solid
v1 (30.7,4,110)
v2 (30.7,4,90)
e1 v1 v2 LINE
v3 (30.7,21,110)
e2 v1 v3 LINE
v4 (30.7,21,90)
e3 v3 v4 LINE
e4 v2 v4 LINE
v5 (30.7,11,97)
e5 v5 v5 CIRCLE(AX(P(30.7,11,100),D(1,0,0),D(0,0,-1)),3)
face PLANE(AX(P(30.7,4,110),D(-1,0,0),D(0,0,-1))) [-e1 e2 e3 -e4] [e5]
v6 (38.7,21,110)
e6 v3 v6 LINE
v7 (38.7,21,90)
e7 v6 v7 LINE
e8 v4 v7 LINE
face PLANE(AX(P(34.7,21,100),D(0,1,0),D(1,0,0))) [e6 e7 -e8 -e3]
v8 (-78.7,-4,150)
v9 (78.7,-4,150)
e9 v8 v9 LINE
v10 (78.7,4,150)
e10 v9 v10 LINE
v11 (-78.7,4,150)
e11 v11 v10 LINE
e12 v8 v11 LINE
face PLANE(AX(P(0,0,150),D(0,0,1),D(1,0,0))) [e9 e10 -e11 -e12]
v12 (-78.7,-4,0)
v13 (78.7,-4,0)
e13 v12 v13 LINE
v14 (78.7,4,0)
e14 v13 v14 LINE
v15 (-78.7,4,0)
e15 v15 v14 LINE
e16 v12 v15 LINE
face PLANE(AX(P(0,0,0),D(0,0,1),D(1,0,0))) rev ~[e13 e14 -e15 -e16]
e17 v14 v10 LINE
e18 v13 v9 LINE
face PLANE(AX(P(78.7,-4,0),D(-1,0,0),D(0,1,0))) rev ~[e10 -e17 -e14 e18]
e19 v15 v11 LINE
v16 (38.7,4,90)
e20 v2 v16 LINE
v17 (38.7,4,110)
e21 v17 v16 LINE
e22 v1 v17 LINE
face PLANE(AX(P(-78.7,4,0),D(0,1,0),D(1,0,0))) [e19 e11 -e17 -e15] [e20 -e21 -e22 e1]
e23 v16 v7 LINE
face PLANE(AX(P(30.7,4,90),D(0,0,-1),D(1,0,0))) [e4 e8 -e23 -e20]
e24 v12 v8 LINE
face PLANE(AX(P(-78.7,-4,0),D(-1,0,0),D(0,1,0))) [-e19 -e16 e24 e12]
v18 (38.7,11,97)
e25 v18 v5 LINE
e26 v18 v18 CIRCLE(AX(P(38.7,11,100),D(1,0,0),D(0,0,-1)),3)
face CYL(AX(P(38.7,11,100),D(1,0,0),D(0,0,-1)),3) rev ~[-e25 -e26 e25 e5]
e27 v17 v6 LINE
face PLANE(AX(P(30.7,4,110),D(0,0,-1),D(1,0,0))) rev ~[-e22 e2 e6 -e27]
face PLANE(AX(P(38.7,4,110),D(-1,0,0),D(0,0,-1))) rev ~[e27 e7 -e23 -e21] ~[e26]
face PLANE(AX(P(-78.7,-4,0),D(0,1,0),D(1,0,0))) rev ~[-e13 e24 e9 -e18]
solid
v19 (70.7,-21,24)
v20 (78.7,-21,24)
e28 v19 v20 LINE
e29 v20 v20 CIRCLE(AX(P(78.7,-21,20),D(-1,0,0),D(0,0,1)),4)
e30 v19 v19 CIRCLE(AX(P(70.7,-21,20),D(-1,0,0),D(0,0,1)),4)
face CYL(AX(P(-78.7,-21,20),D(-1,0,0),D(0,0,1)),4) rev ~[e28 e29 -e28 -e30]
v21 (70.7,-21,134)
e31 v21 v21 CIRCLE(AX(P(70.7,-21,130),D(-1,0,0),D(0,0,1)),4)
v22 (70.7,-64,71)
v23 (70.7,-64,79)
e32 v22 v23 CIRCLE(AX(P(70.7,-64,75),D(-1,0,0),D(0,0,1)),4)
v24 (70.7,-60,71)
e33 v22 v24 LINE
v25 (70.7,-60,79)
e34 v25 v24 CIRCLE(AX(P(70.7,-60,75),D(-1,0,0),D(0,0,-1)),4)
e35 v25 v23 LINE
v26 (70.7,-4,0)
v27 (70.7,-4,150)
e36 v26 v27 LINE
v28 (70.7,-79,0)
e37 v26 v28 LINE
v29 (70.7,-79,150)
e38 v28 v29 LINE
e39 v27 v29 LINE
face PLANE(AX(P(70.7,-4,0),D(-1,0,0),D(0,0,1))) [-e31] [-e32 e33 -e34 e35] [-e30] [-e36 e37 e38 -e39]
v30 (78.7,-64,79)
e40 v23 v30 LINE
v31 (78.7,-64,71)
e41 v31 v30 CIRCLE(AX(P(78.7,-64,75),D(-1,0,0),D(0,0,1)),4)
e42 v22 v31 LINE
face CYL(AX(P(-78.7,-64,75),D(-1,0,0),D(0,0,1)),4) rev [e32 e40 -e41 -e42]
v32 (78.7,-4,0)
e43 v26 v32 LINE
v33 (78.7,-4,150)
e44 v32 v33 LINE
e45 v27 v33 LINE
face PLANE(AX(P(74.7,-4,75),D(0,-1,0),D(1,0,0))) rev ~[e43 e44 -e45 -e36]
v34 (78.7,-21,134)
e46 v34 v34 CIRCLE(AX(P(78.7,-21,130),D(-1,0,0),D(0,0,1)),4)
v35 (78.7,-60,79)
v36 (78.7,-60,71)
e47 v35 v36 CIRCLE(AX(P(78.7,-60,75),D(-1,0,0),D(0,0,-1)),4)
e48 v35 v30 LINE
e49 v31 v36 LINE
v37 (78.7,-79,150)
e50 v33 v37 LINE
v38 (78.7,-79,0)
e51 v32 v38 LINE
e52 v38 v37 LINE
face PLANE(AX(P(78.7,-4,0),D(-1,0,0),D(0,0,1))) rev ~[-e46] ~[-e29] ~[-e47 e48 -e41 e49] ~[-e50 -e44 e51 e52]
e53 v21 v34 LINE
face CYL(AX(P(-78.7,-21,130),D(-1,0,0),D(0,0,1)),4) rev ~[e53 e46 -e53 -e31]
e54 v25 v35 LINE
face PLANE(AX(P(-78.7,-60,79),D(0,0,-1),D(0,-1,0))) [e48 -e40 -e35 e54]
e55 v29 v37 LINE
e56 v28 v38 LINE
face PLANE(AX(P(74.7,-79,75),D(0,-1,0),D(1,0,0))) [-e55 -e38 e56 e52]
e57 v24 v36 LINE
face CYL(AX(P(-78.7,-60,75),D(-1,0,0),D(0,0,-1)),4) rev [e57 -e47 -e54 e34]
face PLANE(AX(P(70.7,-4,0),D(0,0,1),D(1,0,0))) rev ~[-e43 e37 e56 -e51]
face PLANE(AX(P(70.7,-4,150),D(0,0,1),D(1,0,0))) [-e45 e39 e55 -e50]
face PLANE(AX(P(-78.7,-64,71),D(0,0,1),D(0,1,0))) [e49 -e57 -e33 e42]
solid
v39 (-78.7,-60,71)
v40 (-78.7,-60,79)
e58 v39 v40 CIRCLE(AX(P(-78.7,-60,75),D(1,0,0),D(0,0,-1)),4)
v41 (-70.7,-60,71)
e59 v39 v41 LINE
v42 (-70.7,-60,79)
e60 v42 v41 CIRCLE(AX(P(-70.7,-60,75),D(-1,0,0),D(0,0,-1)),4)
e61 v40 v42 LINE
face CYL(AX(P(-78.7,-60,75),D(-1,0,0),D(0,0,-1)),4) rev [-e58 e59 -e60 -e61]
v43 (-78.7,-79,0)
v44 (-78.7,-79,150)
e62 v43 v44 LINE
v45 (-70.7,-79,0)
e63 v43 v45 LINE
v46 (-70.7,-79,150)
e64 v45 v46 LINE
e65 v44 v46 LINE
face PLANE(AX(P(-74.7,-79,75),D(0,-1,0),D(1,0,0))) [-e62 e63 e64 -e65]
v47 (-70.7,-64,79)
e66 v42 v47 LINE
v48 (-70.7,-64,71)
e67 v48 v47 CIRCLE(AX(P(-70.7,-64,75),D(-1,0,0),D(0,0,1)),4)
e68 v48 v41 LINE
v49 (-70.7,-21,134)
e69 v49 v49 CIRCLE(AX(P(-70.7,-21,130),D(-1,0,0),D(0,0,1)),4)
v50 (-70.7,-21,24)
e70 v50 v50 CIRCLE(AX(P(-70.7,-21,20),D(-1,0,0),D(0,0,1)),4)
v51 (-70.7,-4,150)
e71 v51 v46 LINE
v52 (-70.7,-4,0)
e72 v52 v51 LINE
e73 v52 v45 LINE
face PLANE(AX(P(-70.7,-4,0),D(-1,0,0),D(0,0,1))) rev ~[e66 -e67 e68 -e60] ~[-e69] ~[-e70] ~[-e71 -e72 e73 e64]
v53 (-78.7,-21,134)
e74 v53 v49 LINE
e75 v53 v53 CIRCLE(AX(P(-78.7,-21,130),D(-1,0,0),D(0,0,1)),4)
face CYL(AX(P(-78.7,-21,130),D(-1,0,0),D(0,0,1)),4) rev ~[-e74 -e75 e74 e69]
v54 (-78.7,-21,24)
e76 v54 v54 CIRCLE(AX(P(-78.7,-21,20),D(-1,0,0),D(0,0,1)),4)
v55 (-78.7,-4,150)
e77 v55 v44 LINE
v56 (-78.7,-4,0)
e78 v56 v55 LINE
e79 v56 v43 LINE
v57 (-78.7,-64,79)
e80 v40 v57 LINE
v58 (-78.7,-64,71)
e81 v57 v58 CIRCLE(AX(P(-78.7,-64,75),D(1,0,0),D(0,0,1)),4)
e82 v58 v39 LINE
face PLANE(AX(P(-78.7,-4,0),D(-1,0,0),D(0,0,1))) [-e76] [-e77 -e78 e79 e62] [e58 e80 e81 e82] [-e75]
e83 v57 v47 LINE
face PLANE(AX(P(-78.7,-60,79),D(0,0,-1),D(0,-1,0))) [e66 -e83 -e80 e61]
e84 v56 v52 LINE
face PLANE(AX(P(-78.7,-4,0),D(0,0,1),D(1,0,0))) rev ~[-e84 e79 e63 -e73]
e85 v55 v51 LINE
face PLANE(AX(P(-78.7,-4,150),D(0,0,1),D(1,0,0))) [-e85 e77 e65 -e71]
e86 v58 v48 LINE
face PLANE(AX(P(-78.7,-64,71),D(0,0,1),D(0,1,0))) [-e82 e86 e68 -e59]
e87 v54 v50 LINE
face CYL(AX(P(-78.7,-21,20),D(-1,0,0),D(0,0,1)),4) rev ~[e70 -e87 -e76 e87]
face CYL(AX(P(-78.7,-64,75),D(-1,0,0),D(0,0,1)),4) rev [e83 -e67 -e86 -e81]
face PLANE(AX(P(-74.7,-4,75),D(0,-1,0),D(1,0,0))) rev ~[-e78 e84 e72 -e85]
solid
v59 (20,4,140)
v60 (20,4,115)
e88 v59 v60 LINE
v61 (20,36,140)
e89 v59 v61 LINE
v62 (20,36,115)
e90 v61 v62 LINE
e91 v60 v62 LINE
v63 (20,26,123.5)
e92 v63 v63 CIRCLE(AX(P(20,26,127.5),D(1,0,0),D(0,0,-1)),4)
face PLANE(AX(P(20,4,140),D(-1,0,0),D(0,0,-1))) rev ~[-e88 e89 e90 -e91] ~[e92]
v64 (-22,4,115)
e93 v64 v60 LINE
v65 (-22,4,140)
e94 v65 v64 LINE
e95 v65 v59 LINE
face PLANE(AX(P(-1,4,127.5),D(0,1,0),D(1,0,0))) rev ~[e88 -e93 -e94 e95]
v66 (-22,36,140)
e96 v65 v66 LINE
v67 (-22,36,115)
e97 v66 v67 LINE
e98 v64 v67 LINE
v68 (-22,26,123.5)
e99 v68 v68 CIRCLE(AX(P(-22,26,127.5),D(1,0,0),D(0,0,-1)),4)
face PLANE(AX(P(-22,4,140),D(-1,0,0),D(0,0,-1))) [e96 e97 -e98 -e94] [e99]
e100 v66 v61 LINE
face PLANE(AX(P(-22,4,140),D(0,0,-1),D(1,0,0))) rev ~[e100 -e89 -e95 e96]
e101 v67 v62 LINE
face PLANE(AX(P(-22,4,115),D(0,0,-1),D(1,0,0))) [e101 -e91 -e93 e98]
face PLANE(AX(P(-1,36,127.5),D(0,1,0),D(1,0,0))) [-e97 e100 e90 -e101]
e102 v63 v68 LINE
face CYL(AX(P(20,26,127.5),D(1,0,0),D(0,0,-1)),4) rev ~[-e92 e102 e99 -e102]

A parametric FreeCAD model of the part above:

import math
import FreeCAD as App
import Part
import Sketcher


def add_polygon(sketch, points):
    """Adds a closed chain of lines whose ends are joined by coincident constraints."""
    first, n = sketch.GeometryCount, len(points)
    for a, b in zip(points, points[1:] + points[:1]):
        sketch.addGeometry(Part.LineSegment(App.Vector(*a, 0), App.Vector(*b, 0)), False)
    for i in range(n):
        sketch.addConstraint(Sketcher.Constraint("Coincident", first + i, 2, first + (i + 1) % n, 1))

doc = App.newDocument("Part")
body = doc.addObject("PartDesign::Body", "Body")

sketch1 = doc.addObject("Sketcher::SketchObject", "Sketch")
body.addObject(sketch1)
sketch1.AttachmentSupport = (doc.XY_Plane, [""])
sketch1.MapMode = "FlatFace"
add_polygon(sketch1, [(-79, 4), (-79, -4), (79, -4), (79, 4)])
sketch1.addConstraint(Sketcher.Constraint("Vertical", 0))
sketch1.addConstraint(Sketcher.Constraint("Horizontal", 1))
sketch1.addConstraint(Sketcher.Constraint("Vertical", 2))
sketch1.addConstraint(Sketcher.Constraint("Horizontal", 3))
sketch1.addConstraint(Sketcher.Constraint("Symmetric", 0, 2, 2, 2, -1, 1))
sketch1.addConstraint(Sketcher.Constraint("DistanceY", 0, 2, 0, 1, 8.0))
sketch1.addConstraint(Sketcher.Constraint("DistanceX", 1, 1, 1, 2, 157.4))
pad1 = doc.addObject("PartDesign::Pad", "Pad")
body.addObject(pad1)
pad1.Profile = sketch1
pad1.Length = 150

sketch2 = doc.addObject("Sketcher::SketchObject", "Sketch001")
body.addObject(sketch2)
sketch2.AttachmentSupport = (doc.XZ_Plane, [""])
sketch2.MapMode = "FlatFace"
sketch2.AttachmentOffset = App.Placement(App.Vector(0, 0, -4), App.Rotation())
add_polygon(sketch2, [(31, 90), (31, 110), (39, 110), (39, 90)])
sketch2.addConstraint(Sketcher.Constraint("Vertical", 0))
sketch2.addConstraint(Sketcher.Constraint("Horizontal", 1))
sketch2.addConstraint(Sketcher.Constraint("Vertical", 2))
sketch2.addConstraint(Sketcher.Constraint("Horizontal", 3))
sketch2.addConstraint(Sketcher.Constraint("DistanceX", 1, 1, 1, 2, 8.0))
sketch2.addConstraint(Sketcher.Constraint("DistanceY", 0, 1, 0, 2, 20.0))
sketch2.addConstraint(Sketcher.Constraint("DistanceY", -1, 1, 0, 2, 110.0))
sketch2.addConstraint(Sketcher.Constraint("DistanceX", -1, 1, 0, 2, 30.7))
pad2 = doc.addObject("PartDesign::Pad", "Pad001")
body.addObject(pad2)
pad2.Profile = sketch2
pad2.Length = 17
pad2.Reversed = True

sketch3 = doc.addObject("Sketcher::SketchObject", "Sketch002")
body.addObject(sketch3)
sketch3.AttachmentSupport = (doc.YZ_Plane, [""])
sketch3.MapMode = "FlatFace"
sketch3.AttachmentOffset = App.Placement(App.Vector(0, 0, 38.7), App.Rotation())
sketch3.addGeometry(Part.Circle(App.Vector(11, 100, 0), App.Vector(0, 0, 1), 3), False)
sketch3.addConstraint(Sketcher.Constraint("Diameter", 0, 6.0))
sketch3.addConstraint(Sketcher.Constraint("DistanceX", -1, 1, 0, 3, 11.0))
sketch3.addConstraint(Sketcher.Constraint("DistanceY", -1, 1, 0, 3, 100.0))
pocket1 = doc.addObject("PartDesign::Pocket", "Pocket")
body.addObject(pocket1)
pocket1.Profile = sketch3
pocket1.Length = 8
body2 = doc.addObject("PartDesign::Body", "Body001")

sketch4 = doc.addObject("Sketcher::SketchObject", "Sketch003")
body2.addObject(sketch4)
sketch4.AttachmentSupport = (doc.getObject("XZ_Plane001"), [""])
sketch4.MapMode = "FlatFace"
sketch4.AttachmentOffset = App.Placement(App.Vector(0, 0, 4), App.Rotation())
add_polygon(sketch4, [(-79, 150), (-79, 0), (-71, 0), (-71, 150)])
sketch4.addConstraint(Sketcher.Constraint("Vertical", 0))
sketch4.addConstraint(Sketcher.Constraint("Horizontal", 1))
sketch4.addConstraint(Sketcher.Constraint("Vertical", 2))
sketch4.addConstraint(Sketcher.Constraint("Horizontal", 3))
sketch4.addConstraint(Sketcher.Constraint("PointOnObject", 0, 2, -1))
sketch4.addConstraint(Sketcher.Constraint("DistanceX", 1, 1, 1, 2, 8.0))
sketch4.addConstraint(Sketcher.Constraint("DistanceY", 0, 2, 0, 1, 150.0))
sketch4.addConstraint(Sketcher.Constraint("DistanceX", 0, 2, -1, 1, 78.7))
pad3 = doc.addObject("PartDesign::Pad", "Pad002")
body2.addObject(pad3)
pad3.Profile = sketch4
pad3.Length = 75
body3 = doc.addObject("PartDesign::Body", "Body002")

sketch5 = doc.addObject("Sketcher::SketchObject", "Sketch004")
body3.addObject(sketch5)
sketch5.AttachmentSupport = (doc.getObject("XZ_Plane002"), [""])
sketch5.MapMode = "FlatFace"
sketch5.AttachmentOffset = App.Placement(App.Vector(0, 0, 4), App.Rotation())
add_polygon(sketch5, [(71, 150), (71, 0), (79, 0), (79, 150)])
sketch5.addConstraint(Sketcher.Constraint("Vertical", 0))
sketch5.addConstraint(Sketcher.Constraint("Horizontal", 1))
sketch5.addConstraint(Sketcher.Constraint("Vertical", 2))
sketch5.addConstraint(Sketcher.Constraint("Horizontal", 3))
sketch5.addConstraint(Sketcher.Constraint("PointOnObject", 0, 2, -1))
sketch5.addConstraint(Sketcher.Constraint("DistanceX", 1, 1, 1, 2, 8.0))
sketch5.addConstraint(Sketcher.Constraint("DistanceY", 0, 2, 0, 1, 150.0))
sketch5.addConstraint(Sketcher.Constraint("DistanceX", -1, 1, 0, 2, 70.7))
pad4 = doc.addObject("PartDesign::Pad", "Pad003")
body3.addObject(pad4)
pad4.Profile = sketch5
pad4.Length = 75
body4 = doc.addObject("PartDesign::Body", "Body003")
body4.AllowCompound = True

sketch6 = doc.addObject("Sketcher::SketchObject", "Sketch005")
body4.addObject(sketch6)
sketch6.AttachmentSupport = (doc.getObject("YZ_Plane003"), [""])
sketch6.MapMode = "FlatFace"
sketch6.AttachmentOffset = App.Placement(App.Vector(0, 0, -78.7), App.Rotation())
sketch6.addGeometry(Part.Circle(App.Vector(-21, 130, 0), App.Vector(0, 0, 1), 4), False)
sketch6.addGeometry(Part.Circle(App.Vector(-21, 20, 0), App.Vector(0, 0, 1), 4), False)
sketch6.addGeometry(Part.LineSegment(App.Vector(-64, 79, 0), App.Vector(-60, 79, 0)), False)
sketch6.addGeometry(Part.ArcOfCircle(Part.Circle(App.Vector(-60, 75, 0), App.Vector(0, 0, 1), 4), math.radians(-90), math.radians(90)), False)
sketch6.addGeometry(Part.LineSegment(App.Vector(-60, 71, 0), App.Vector(-64, 71, 0)), False)
sketch6.addGeometry(Part.ArcOfCircle(Part.Circle(App.Vector(-64, 75, 0), App.Vector(0, 0, 1), 4), math.radians(90), math.radians(270)), False)
sketch6.addConstraint(Sketcher.Constraint("Tangent", 2, 2, 3, 2))
sketch6.addConstraint(Sketcher.Constraint("Tangent", 3, 1, 4, 1))
sketch6.addConstraint(Sketcher.Constraint("Tangent", 4, 2, 5, 2))
sketch6.addConstraint(Sketcher.Constraint("Tangent", 5, 1, 2, 1))
sketch6.addConstraint(Sketcher.Constraint("Horizontal", 2))
sketch6.addConstraint(Sketcher.Constraint("Horizontal", 4))
sketch6.addConstraint(Sketcher.Constraint("Equal", 0, 1))
sketch6.addConstraint(Sketcher.Constraint("Equal", 1, 3))
sketch6.addConstraint(Sketcher.Constraint("Vertical", 0, 3, 1, 3))
sketch6.addConstraint(Sketcher.Constraint("Diameter", 0, 8.0))
sketch6.addConstraint(Sketcher.Constraint("DistanceX", 2, 1, 2, 2, 4.0))
sketch6.addConstraint(Sketcher.Constraint("DistanceX", 0, 3, -1, 1, 21.0))
sketch6.addConstraint(Sketcher.Constraint("DistanceY", -1, 1, 0, 3, 130.0))
sketch6.addConstraint(Sketcher.Constraint("DistanceY", -1, 1, 1, 3, 20.0))
sketch6.addConstraint(Sketcher.Constraint("DistanceX", 3, 3, -1, 1, 60.0))
sketch6.addConstraint(Sketcher.Constraint("DistanceY", -1, 1, 3, 3, 75.0))
pad5 = doc.addObject("PartDesign::Pad", "Pad004")
body4.addObject(pad5)
pad5.Profile = sketch6
pad5.Length = 232.334736
doc.recompute()

body5 = doc.addObject("PartDesign::Body", "Body004")
body5.BaseFeature = body4
boolean = doc.addObject("PartDesign::Boolean", "Boolean")
body2.addObject(boolean)
boolean.Type = "Cut"
boolean.addObjects([body5])
doc.recompute()

boolean2 = doc.addObject("PartDesign::Boolean", "Boolean001")
body3.addObject(boolean2)
boolean2.Type = "Cut"
boolean2.addObjects([body4])
body6 = doc.addObject("PartDesign::Body", "Body005")

sketch7 = doc.addObject("Sketcher::SketchObject", "Sketch006")
body6.addObject(sketch7)
sketch7.AttachmentSupport = (doc.getObject("XZ_Plane005"), [""])
sketch7.MapMode = "FlatFace"
sketch7.AttachmentOffset = App.Placement(App.Vector(0, 0, -4), App.Rotation())
add_polygon(sketch7, [(-22, 115), (-22, 140), (20, 140), (20, 115)])
sketch7.addConstraint(Sketcher.Constraint("Vertical", 0))
sketch7.addConstraint(Sketcher.Constraint("Horizontal", 1))
sketch7.addConstraint(Sketcher.Constraint("Vertical", 2))
sketch7.addConstraint(Sketcher.Constraint("Horizontal", 3))
sketch7.addConstraint(Sketcher.Constraint("DistanceX", 1, 1, 1, 2, 42.0))
sketch7.addConstraint(Sketcher.Constraint("DistanceY", 0, 1, 0, 2, 25.0))
sketch7.addConstraint(Sketcher.Constraint("DistanceX", 0, 2, -1, 1, 22.0))
sketch7.addConstraint(Sketcher.Constraint("DistanceY", -1, 1, 0, 2, 140.0))
pad6 = doc.addObject("PartDesign::Pad", "Pad005")
body6.addObject(pad6)
pad6.Profile = sketch7
pad6.Length = 32
pad6.Reversed = True

sketch8 = doc.addObject("Sketcher::SketchObject", "Sketch007")
body6.addObject(sketch8)
sketch8.AttachmentSupport = (doc.getObject("YZ_Plane005"), [""])
sketch8.MapMode = "FlatFace"
sketch8.AttachmentOffset = App.Placement(App.Vector(0, 0, 20), App.Rotation())
sketch8.addGeometry(Part.Circle(App.Vector(26, 127.5, 0), App.Vector(0, 0, 1), 4), False)
sketch8.addConstraint(Sketcher.Constraint("Diameter", 0, 8.0))
sketch8.addConstraint(Sketcher.Constraint("DistanceX", -1, 1, 0, 3, 26.0))
sketch8.addConstraint(Sketcher.Constraint("DistanceY", -1, 1, 0, 3, 127.5))
pocket2 = doc.addObject("PartDesign::Pocket", "Pocket001")
body6.addObject(pocket2)
pocket2.Profile = sketch8
pocket2.Type = "ThroughAll"

doc.recompute()
